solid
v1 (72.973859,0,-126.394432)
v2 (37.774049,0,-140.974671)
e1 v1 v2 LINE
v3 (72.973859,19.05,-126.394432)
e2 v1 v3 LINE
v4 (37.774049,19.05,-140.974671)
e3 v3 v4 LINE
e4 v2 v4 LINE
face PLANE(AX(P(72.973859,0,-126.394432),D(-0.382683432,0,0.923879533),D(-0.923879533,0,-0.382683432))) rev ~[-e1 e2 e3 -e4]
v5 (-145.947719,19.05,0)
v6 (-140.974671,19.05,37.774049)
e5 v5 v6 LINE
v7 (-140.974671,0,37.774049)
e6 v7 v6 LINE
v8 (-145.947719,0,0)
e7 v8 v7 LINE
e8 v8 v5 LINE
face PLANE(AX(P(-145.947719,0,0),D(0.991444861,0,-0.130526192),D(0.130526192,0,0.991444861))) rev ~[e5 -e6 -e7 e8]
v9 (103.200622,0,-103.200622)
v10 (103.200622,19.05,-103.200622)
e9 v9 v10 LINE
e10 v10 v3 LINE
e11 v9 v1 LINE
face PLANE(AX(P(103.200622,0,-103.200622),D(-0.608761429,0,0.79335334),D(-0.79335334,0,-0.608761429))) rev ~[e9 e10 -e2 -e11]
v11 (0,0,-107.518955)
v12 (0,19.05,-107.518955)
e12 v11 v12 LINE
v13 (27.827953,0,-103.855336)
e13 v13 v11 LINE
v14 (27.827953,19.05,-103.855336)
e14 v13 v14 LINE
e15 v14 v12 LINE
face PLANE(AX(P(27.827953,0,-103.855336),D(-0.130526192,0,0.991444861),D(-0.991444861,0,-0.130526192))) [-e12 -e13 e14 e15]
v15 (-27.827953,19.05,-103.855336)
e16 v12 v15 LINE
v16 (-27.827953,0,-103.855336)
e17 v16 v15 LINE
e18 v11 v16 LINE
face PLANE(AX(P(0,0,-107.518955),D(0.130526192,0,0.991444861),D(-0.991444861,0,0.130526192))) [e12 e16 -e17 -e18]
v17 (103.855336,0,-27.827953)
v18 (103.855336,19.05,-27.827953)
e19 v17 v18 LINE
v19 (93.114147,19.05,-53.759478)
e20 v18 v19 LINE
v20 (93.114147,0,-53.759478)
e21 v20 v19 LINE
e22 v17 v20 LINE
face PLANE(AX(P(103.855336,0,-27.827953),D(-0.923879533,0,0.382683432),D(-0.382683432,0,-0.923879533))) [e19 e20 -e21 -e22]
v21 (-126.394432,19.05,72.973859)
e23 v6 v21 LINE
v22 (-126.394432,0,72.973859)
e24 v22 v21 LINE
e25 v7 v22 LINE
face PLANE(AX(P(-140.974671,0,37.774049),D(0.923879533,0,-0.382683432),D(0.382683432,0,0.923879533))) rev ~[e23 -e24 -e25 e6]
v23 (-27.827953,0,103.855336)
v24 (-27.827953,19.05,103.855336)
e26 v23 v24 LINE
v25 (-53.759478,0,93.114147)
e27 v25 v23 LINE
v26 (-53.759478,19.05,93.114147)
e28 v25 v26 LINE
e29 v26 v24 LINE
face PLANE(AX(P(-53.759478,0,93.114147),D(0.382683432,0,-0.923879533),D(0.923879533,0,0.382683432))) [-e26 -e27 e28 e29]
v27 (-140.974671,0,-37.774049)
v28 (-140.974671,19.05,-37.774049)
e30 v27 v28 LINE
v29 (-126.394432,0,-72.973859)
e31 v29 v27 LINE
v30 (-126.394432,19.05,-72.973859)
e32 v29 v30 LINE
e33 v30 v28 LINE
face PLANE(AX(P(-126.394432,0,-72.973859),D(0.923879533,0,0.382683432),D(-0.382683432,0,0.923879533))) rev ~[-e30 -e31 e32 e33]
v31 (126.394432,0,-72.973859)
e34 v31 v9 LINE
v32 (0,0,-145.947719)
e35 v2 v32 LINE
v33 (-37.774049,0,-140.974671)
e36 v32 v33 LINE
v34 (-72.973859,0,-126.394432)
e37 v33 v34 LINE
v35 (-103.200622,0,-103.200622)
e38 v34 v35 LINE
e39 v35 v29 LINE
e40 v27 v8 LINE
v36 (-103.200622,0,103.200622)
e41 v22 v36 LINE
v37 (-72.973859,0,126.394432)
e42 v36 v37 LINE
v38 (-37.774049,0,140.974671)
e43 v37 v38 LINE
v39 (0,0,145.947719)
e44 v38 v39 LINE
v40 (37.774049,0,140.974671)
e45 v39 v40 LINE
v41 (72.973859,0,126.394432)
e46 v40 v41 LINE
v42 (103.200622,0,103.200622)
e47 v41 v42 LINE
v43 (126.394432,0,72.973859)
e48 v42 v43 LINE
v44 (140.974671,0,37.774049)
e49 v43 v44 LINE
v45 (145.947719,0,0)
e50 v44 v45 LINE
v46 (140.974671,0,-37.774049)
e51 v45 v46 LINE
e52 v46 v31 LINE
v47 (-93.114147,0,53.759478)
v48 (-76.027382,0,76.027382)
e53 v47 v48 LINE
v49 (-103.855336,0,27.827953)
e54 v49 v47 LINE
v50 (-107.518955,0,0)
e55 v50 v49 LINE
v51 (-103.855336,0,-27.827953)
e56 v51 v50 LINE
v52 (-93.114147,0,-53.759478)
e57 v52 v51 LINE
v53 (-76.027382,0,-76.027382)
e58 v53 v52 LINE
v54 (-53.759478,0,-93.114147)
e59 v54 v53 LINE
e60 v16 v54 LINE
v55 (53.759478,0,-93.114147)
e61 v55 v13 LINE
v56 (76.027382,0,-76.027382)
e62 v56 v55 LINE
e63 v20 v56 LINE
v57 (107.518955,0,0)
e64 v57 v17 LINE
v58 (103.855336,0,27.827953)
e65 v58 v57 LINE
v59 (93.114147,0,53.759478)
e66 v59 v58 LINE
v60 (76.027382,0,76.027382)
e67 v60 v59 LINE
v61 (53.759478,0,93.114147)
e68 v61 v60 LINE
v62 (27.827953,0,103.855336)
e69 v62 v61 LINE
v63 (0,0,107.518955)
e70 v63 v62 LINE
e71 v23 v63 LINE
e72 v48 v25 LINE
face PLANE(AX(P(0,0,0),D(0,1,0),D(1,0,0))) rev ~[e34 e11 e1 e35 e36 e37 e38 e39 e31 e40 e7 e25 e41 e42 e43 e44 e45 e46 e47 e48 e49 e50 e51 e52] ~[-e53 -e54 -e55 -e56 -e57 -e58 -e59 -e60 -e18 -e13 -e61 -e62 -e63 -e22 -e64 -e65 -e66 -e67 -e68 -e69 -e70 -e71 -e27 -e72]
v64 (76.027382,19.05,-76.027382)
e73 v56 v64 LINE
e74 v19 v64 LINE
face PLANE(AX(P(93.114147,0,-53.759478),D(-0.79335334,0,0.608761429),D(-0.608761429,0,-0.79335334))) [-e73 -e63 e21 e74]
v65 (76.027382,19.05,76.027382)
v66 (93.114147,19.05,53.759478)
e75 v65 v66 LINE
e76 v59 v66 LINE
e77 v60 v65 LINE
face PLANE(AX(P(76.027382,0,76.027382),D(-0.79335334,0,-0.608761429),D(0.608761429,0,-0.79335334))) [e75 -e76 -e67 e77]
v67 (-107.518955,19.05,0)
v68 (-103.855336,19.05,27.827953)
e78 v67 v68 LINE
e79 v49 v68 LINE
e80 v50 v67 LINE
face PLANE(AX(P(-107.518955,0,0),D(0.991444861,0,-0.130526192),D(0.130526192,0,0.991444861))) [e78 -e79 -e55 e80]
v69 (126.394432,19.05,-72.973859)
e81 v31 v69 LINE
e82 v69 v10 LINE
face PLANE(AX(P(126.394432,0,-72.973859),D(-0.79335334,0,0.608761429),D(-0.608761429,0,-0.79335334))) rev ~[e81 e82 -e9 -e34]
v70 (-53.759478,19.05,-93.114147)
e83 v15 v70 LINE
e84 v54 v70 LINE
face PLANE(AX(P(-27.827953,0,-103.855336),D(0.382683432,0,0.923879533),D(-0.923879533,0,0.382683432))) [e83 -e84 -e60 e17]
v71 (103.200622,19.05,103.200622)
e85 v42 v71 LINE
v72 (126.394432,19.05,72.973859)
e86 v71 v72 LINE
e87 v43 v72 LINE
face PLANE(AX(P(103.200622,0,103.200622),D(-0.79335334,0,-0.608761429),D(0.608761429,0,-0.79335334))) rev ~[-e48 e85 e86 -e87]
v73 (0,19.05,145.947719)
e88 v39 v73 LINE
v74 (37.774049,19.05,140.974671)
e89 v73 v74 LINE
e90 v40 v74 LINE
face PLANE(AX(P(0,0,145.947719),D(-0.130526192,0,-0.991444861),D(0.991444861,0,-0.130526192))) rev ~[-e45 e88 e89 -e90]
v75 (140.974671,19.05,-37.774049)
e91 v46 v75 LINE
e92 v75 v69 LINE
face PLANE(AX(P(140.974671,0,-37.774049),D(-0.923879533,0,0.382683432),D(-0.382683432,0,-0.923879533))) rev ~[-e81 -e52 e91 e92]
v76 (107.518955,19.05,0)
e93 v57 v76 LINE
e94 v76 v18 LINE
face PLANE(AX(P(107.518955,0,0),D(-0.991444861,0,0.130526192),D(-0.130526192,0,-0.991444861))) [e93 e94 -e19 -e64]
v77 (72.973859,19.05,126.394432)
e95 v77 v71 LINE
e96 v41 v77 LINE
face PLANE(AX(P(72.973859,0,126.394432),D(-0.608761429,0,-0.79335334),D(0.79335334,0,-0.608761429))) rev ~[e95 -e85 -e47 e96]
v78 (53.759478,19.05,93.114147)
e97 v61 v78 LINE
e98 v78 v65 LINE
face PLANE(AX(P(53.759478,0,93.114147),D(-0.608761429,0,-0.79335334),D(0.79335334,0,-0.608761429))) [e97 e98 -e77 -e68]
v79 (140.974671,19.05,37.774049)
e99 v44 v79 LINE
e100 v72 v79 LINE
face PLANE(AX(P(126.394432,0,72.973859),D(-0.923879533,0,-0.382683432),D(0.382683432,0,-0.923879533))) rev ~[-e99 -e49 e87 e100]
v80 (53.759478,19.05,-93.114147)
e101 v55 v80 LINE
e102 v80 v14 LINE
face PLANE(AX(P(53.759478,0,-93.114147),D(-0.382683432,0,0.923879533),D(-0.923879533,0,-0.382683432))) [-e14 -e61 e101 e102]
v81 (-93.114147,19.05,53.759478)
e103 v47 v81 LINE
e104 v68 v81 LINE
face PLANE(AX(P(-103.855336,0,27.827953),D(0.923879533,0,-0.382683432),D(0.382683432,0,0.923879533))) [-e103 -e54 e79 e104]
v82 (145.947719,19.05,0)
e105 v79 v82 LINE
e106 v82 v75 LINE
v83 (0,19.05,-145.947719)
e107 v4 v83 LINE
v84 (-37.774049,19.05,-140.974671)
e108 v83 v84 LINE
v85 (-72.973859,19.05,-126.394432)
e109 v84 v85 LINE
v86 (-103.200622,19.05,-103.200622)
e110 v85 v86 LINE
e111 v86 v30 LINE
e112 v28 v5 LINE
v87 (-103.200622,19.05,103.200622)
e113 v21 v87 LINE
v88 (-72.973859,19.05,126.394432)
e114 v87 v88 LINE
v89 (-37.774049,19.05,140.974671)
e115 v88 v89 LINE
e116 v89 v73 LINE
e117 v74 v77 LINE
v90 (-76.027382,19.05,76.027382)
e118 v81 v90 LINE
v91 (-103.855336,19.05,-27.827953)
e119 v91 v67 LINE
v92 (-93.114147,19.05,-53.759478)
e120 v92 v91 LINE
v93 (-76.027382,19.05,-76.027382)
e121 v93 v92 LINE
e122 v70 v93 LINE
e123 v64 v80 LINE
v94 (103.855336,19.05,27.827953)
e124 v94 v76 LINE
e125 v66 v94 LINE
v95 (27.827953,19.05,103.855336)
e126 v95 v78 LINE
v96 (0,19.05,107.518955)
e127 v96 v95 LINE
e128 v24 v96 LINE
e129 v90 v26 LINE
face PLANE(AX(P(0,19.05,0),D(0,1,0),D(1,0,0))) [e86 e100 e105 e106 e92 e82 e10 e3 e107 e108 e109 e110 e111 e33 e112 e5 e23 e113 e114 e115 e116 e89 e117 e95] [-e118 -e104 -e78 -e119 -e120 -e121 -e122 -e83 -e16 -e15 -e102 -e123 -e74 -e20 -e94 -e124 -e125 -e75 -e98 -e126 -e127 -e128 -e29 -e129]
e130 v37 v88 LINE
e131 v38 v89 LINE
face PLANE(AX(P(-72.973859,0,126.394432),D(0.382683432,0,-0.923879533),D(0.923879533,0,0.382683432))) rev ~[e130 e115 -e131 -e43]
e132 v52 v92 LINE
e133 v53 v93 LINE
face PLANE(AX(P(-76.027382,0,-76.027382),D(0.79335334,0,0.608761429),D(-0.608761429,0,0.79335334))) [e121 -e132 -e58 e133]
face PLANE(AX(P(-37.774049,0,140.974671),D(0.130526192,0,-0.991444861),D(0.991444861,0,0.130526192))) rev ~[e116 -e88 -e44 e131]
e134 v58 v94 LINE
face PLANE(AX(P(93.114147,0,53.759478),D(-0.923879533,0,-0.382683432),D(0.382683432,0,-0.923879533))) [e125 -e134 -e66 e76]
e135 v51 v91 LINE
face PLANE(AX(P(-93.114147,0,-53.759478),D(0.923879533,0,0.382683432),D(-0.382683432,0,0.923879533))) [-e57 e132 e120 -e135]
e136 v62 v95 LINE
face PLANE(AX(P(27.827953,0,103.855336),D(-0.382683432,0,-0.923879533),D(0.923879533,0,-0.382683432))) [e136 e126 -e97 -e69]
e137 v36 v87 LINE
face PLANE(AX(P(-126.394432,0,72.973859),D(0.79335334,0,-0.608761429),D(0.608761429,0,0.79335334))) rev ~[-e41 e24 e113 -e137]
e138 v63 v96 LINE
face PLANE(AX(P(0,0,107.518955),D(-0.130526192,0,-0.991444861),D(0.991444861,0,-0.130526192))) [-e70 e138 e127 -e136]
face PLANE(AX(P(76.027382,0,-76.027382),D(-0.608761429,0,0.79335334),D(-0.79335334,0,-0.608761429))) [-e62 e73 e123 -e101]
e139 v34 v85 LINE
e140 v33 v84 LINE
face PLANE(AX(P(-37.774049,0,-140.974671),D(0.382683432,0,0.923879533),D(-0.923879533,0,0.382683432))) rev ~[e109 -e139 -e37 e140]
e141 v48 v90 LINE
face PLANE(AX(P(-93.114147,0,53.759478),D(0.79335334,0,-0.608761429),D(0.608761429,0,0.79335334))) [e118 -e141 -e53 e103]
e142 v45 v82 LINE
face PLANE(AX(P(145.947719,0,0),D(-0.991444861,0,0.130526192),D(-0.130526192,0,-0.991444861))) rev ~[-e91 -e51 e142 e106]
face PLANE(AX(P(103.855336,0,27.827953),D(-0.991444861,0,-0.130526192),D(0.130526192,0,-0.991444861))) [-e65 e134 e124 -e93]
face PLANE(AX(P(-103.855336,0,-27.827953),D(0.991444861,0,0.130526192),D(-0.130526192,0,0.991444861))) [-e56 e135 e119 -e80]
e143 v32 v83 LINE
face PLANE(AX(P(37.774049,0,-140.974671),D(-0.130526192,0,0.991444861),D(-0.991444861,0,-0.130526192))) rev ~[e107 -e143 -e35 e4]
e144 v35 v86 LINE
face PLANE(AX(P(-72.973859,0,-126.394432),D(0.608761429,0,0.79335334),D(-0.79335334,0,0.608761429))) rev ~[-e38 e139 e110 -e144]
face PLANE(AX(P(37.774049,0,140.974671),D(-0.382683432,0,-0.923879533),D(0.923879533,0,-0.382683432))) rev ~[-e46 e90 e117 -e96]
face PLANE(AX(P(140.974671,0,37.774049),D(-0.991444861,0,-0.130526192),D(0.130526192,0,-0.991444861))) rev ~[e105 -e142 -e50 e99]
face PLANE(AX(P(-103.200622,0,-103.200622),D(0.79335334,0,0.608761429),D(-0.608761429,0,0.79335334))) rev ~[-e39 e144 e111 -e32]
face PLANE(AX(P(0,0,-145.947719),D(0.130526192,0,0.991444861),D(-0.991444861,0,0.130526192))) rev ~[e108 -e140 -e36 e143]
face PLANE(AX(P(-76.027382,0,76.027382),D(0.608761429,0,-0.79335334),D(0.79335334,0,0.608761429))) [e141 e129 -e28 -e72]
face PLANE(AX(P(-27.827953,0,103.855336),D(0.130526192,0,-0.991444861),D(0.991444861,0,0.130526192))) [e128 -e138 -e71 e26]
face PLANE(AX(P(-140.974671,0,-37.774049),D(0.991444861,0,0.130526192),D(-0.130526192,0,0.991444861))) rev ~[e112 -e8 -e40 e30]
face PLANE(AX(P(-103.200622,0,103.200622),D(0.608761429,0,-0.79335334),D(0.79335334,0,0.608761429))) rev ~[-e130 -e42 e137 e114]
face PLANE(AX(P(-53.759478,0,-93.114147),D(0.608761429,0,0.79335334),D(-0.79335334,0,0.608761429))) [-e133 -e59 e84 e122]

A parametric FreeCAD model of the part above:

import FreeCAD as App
import Part
import Sketcher
from FreeCAD import Vector
Q = App.Units.Quantity


def add_polygon(sketch, points):
    """Adds a closed chain of lines whose ends are joined by coincident constraints."""
    first, n = sketch.GeometryCount, len(points)
    for a, b in zip(points, points[1:] + points[:1]):
        sketch.addGeometry(Part.LineSegment(App.Vector(*a, 0), App.Vector(*b, 0)), False)
    for i in range(n):
        sketch.addConstraint(Sketcher.Constraint("Coincident", first + i, 2, first + (i + 1) % n, 1))

doc = App.newDocument("Part")
body = doc.addObject("PartDesign::Body", "Body")

sketch1 = doc.addObject("Sketcher::SketchObject", "Sketch")
body.addObject(sketch1)
sketch1.AttachmentSupport = (doc.XZ_Plane, [""])
sketch1.MapMode = "FlatFace"
add_polygon(sketch1, [(-146, 0), (-141, 38), (-126, 73), (-103, 103), (-73, 126), (-38, 141), (0, 146), (38, 141), (73, 126), (103, 103), (126, 73), (141, 38), (146, 0), (141, -38), (126, -73), (103, -103), (73, -126), (38, -141), (0, -146), (-38, -141), (-73, -126), (-103, -103), (-126, -73), (-141, -38)])
add_polygon(sketch1, [(-104, 28), (-108, 0), (-104, -28), (-93, -54), (-76, -76), (-54, -93), (-28, -104), (0, -108), (28, -104), (54, -93), (76, -76), (93, -54), (104, -28), (108, 0), (104, 28), (93, 54), (76, 76), (54, 93), (28, 104), (0, 108), (-28, 104), (-54, 93), (-76, 76), (-93, 54)])
sketch1.addConstraint(Sketcher.Constraint("Symmetric", 0, 2, 12, 2, -1, 1))
sketch1.addConstraint(Sketcher.Constraint("Symmetric", 1, 2, 13, 2, -1, 1))
sketch1.addConstraint(Sketcher.Constraint("Symmetric", 2, 2, 14, 2, -1, 1))
sketch1.addConstraint(Sketcher.Constraint("Symmetric", 3, 2, 15, 2, -1, 1))
sketch1.addConstraint(Sketcher.Constraint("Symmetric", 4, 2, 16, 2, -1, 1))
sketch1.addConstraint(Sketcher.Constraint("Symmetric", 5, 2, 17, 2, -1, 1))
sketch1.addConstraint(Sketcher.Constraint("Symmetric", 6, 2, 18, 2, -1, 1))
sketch1.addConstraint(Sketcher.Constraint("Symmetric", 7, 2, 19, 2, -1, 1))
sketch1.addConstraint(Sketcher.Constraint("Symmetric", 8, 2, 20, 2, -1, 1))
sketch1.addConstraint(Sketcher.Constraint("Symmetric", 9, 2, 21, 2, -1, 1))
sketch1.addConstraint(Sketcher.Constraint("Symmetric", 10, 2, 22, 2, -1, 1))
sketch1.addConstraint(Sketcher.Constraint("Symmetric", 11, 2, 23, 2, -1, 1))
sketch1.addConstraint(Sketcher.Constraint("Symmetric", 24, 2, 36, 2, -1, 1))
sketch1.addConstraint(Sketcher.Constraint("Symmetric", 25, 2, 37, 2, -1, 1))
sketch1.addConstraint(Sketcher.Constraint("Symmetric", 26, 2, 38, 2, -1, 1))
sketch1.addConstraint(Sketcher.Constraint("Symmetric", 27, 2, 39, 2, -1, 1))
sketch1.addConstraint(Sketcher.Constraint("Symmetric", 28, 2, 40, 2, -1, 1))
sketch1.addConstraint(Sketcher.Constraint("Symmetric", 29, 2, 41, 2, -1, 1))
sketch1.addConstraint(Sketcher.Constraint("Symmetric", 30, 2, 42, 2, -1, 1))
sketch1.addConstraint(Sketcher.Constraint("Symmetric", 31, 2, 43, 2, -1, 1))
sketch1.addConstraint(Sketcher.Constraint("Symmetric", 32, 2, 44, 2, -1, 1))
sketch1.addConstraint(Sketcher.Constraint("Symmetric", 33, 2, 45, 2, -1, 1))
sketch1.addConstraint(Sketcher.Constraint("Symmetric", 34, 2, 46, 2, -1, 1))
sketch1.addConstraint(Sketcher.Constraint("Symmetric", 35, 2, 47, 2, -1, 1))
sketch1.addConstraint(Sketcher.Constraint("Symmetric", 4, 2, 6, 2, -2))
sketch1.addConstraint(Sketcher.Constraint("Symmetric", 3, 2, 7, 2, -2))
sketch1.addConstraint(Sketcher.Constraint("Symmetric", 2, 2, 8, 2, -2))
sketch1.addConstraint(Sketcher.Constraint("Symmetric", 1, 2, 9, 2, -2))
sketch1.addConstraint(Sketcher.Constraint("Symmetric", 0, 2, 10, 2, -2))
sketch1.addConstraint(Sketcher.Constraint("Symmetric", 29, 2, 31, 2, -2))
sketch1.addConstraint(Sketcher.Constraint("Symmetric", 28, 2, 32, 2, -2))
sketch1.addConstraint(Sketcher.Constraint("Symmetric", 27, 2, 33, 2, -2))
sketch1.addConstraint(Sketcher.Constraint("Symmetric", 26, 2, 34, 2, -2))
sketch1.addConstraint(Sketcher.Constraint("Symmetric", 25, 2, 35, 2, -2))
sketch1.addConstraint(Sketcher.Constraint("PointOnObject", 5, 2, -2))
sketch1.addConstraint(Sketcher.Constraint("PointOnObject", 11, 2, -1))
sketch1.addConstraint(Sketcher.Constraint("PointOnObject", 24, 2, -1))
sketch1.addConstraint(Sketcher.Constraint("PointOnObject", 30, 2, -2))
sketch1.addConstraint(Sketcher.Constraint("Perpendicular", 0, 6))
sketch1.addConstraint(Sketcher.Constraint("Perpendicular", 1, 7))
sketch1.addConstraint(Sketcher.Constraint("Perpendicular", 2, 8))
sketch1.addConstraint(Sketcher.Constraint("Perpendicular", 18, 24))
sketch1.addConstraint(Sketcher.Constraint("Parallel", 22, 26))
sketch1.addConstraint(Sketcher.Constraint("Parallel", 21, 27))
sketch1.addConstraint(Sketcher.Constraint("Parallel", 20, 28))
sketch1.addConstraint(Sketcher.Constraint("Parallel", 19, 29))
sketch1.addConstraint(Sketcher.Constraint("Perpendicular", 24, 30))
sketch1.addConstraint(Sketcher.Constraint("Equal", 0, 1))
sketch1.addConstraint(Sketcher.Constraint("Equal", 1, 2))
sketch1.addConstraint(Sketcher.Constraint("Equal", 2, 3))
sketch1.addConstraint(Sketcher.Constraint("Equal", 3, 4))
sketch1.addConstraint(Sketcher.Constraint("Equal", 4, 5))
sketch1.addConstraint(Sketcher.Constraint("Equal", 25, 26))
sketch1.addConstraint(Sketcher.Constraint("Equal", 26, 27))
sketch1.addConstraint(Sketcher.Constraint("Equal", 27, 28))
sketch1.addConstraint(Sketcher.Constraint("Equal", 28, 29))
sketch1.addConstraint(Sketcher.Constraint("Equal", 29, 30))
sketch1.addConstraint(Sketcher.Constraint("Distance", 0, Q("1.5 in")))
sketch1.addConstraint(Sketcher.Constraint("Angle", 0, Q("82.5 deg")))
sketch1.addConstraint(Sketcher.Constraint("Angle", 1, Q("67.5 deg")))
sketch1.addConstraint(Sketcher.Constraint("Angle", 2, Q("52.5 deg")))
sketch1.addConstraint(Sketcher.Constraint("Distance", 24, 28.06808))
pad1 = doc.addObject("PartDesign::Pad", "Pad")
body.addObject(pad1)
pad1.Profile = sketch1
pad1.Length = Q("0.75 in")
pad1.Reversed = True

doc.recompute()
